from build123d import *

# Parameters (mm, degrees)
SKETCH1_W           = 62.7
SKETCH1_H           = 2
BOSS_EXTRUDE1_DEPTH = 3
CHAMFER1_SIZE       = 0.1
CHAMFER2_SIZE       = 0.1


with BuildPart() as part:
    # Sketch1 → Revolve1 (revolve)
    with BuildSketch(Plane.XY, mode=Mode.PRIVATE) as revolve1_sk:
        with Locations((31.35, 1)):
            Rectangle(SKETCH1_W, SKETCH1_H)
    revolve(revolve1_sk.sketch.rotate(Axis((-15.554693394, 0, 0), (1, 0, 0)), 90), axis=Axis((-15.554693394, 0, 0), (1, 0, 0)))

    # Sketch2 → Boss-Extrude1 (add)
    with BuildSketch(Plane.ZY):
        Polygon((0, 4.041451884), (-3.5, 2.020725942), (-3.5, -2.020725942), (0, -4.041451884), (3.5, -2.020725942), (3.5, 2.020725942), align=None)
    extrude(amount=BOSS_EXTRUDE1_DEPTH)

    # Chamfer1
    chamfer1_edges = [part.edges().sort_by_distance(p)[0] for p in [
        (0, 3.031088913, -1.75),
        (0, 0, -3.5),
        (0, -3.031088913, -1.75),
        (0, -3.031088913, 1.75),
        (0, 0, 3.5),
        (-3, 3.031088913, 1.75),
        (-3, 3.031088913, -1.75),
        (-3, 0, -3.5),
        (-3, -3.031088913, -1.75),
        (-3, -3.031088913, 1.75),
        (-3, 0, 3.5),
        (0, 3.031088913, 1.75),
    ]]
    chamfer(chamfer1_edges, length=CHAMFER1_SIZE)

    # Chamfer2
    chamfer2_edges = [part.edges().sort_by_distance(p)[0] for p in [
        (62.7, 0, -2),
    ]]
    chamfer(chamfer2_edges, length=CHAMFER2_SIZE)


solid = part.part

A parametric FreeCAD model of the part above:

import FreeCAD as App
import Part
import Sketcher
Q = App.Units.Quantity


def edges_at(feature, points):
    """Names of the edges that pass closest to the given points."""
    edges = feature.Shape.Edges
    near = lambda p: min(range(len(edges)), key=lambda i: edges[i].distToShape(Part.Vertex(*p))[0])
    return sorted({f"Edge{near(p) + 1}" for p in points})


def add_polygon(sketch, points):
    """Adds a closed chain of lines whose ends are joined by coincident constraints."""
    first, n = sketch.GeometryCount, len(points)
    for a, b in zip(points, points[1:] + points[:1]):
        sketch.addGeometry(Part.LineSegment(App.Vector(*a, 0), App.Vector(*b, 0)), False)
    for i in range(n):
        sketch.addConstraint(Sketcher.Constraint("Coincident", first + i, 2, first + (i + 1) % n, 1))

doc = App.newDocument("Part")
params = doc.addObject("Spreadsheet::Sheet", "Params")
for row, (alias, value) in enumerate([
    ("sketch1_height", "2 mm"),
    ("sketch1_width", "62.7 mm"),
    ("revolution_angle", "360 deg"),
    ("pad1_length", "3 mm"),
    ("chamfer_size", "0.1 mm"),
    ("chamfer2_size", "0.1 mm"),
], start=1):
    params.set(f"A{row}", alias)
    params.set(f"B{row}", "=" + value)
    params.setAlias(f"B{row}", alias)

body = doc.addObject("PartDesign::Body", "Body")

# Sketch on XY plane
sketch1 = body.newObject("Sketcher::SketchObject", "Sketch")
sketch1.AttachmentSupport = (doc.getObject("XY_Plane"), [""])
sketch1.MapMode = "FlatFace"
add_polygon(sketch1, [(0, 2), (0, 0), (62.7, 0), (62.7, 2)])  # lines 0-3
sketch1.addConstraint(Sketcher.Constraint("Vertical", 0))
sketch1.addConstraint(Sketcher.Constraint("Horizontal", 1))
sketch1.addConstraint(Sketcher.Constraint("Vertical", 2))
sketch1.addConstraint(Sketcher.Constraint("Horizontal", 3))
sketch1.addConstraint(Sketcher.Constraint("Coincident", 0, 2, -1, 1))
sketch1.addConstraint(Sketcher.Constraint("DistanceY", 0, 2, 0, 1, 2.0))
sketch1.addConstraint(Sketcher.Constraint("DistanceX", 1, 1, 1, 2, 62.7))
sketch1.setExpression("Constraints[9]", "Params.sketch1_height")
sketch1.setExpression("Constraints[10]", "Params.sketch1_width")
revolution = body.newObject("PartDesign::Revolution", "Revolution")
revolution.Profile = sketch1
revolution.ReferenceAxis = (sketch1, ["H_Axis"])
revolution.setExpression("Angle", "Params.revolution_angle")

# Sketch on YZ plane
sketch2 = body.newObject("Sketcher::SketchObject", "Sketch001")
sketch2.AttachmentSupport = (doc.getObject("YZ_Plane"), [""])
sketch2.MapMode = "FlatFace"
add_polygon(sketch2, [(4, 0), (2, -3.5), (-2, -3.5), (-4, 0), (-2, 3.5), (2, 3.5)])  # lines 0-5
sketch2.addConstraint(Sketcher.Constraint("Horizontal", 1))
sketch2.addConstraint(Sketcher.Constraint("Horizontal", 4))
sketch2.addConstraint(Sketcher.Constraint("Symmetric", 0, 2, 3, 2, -1, 1))
sketch2.addConstraint(Sketcher.Constraint("Symmetric", 2, 2, 5, 2, -1, 1))
sketch2.addConstraint(Sketcher.Constraint("PointOnObject", 2, 2, -1))
sketch2.addConstraint(Sketcher.Constraint("Parallel", 2, 5))
sketch2.addConstraint(Sketcher.Constraint("Vertical", 1, 2, 3, 2))
sketch2.addConstraint(Sketcher.Constraint("Angle", 0, Q("-120 deg")))
sketch2.addConstraint(Sketcher.Constraint("DistanceY", 1, 2, 3, 2, 7.0))
sketch2.addConstraint(Sketcher.Constraint("DistanceX", 1, 2, 1, 1, 4.041452))
pad1 = body.newObject("PartDesign::Pad", "Pad")
pad1.Profile = sketch2
pad1.setExpression("Length", "Params.pad1_length")
pad1.Reversed = True
doc.recompute()

chamfer = body.newObject("PartDesign::Chamfer", "Chamfer")
chamfer.Base = (pad1, edges_at(pad1, [
    (0, 3.031, -1.75),
    (0, 0, -3.5),
    (0, -3.031, -1.75),
    (0, -3.031, 1.75),
    (0, 0, 3.5),
    (-3, 3.031, 1.75),
    (-3, 3.031, -1.75),
    (-3, 0, -3.5),
    (-3, -3.031, -1.75),
    (-3, -3.031, 1.75),
    (-3, 0, 3.5),
    (0, 3.031, 1.75),
]))
chamfer.setExpression("Size", "Params.chamfer_size")
doc.recompute()

chamfer2 = body.newObject("PartDesign::Chamfer", "Chamfer001")
chamfer2.Base = (chamfer, edges_at(chamfer, [(62.7, 0, -2)]))
chamfer2.setExpression("Size", "Params.chamfer2_size")

doc.recompute()
